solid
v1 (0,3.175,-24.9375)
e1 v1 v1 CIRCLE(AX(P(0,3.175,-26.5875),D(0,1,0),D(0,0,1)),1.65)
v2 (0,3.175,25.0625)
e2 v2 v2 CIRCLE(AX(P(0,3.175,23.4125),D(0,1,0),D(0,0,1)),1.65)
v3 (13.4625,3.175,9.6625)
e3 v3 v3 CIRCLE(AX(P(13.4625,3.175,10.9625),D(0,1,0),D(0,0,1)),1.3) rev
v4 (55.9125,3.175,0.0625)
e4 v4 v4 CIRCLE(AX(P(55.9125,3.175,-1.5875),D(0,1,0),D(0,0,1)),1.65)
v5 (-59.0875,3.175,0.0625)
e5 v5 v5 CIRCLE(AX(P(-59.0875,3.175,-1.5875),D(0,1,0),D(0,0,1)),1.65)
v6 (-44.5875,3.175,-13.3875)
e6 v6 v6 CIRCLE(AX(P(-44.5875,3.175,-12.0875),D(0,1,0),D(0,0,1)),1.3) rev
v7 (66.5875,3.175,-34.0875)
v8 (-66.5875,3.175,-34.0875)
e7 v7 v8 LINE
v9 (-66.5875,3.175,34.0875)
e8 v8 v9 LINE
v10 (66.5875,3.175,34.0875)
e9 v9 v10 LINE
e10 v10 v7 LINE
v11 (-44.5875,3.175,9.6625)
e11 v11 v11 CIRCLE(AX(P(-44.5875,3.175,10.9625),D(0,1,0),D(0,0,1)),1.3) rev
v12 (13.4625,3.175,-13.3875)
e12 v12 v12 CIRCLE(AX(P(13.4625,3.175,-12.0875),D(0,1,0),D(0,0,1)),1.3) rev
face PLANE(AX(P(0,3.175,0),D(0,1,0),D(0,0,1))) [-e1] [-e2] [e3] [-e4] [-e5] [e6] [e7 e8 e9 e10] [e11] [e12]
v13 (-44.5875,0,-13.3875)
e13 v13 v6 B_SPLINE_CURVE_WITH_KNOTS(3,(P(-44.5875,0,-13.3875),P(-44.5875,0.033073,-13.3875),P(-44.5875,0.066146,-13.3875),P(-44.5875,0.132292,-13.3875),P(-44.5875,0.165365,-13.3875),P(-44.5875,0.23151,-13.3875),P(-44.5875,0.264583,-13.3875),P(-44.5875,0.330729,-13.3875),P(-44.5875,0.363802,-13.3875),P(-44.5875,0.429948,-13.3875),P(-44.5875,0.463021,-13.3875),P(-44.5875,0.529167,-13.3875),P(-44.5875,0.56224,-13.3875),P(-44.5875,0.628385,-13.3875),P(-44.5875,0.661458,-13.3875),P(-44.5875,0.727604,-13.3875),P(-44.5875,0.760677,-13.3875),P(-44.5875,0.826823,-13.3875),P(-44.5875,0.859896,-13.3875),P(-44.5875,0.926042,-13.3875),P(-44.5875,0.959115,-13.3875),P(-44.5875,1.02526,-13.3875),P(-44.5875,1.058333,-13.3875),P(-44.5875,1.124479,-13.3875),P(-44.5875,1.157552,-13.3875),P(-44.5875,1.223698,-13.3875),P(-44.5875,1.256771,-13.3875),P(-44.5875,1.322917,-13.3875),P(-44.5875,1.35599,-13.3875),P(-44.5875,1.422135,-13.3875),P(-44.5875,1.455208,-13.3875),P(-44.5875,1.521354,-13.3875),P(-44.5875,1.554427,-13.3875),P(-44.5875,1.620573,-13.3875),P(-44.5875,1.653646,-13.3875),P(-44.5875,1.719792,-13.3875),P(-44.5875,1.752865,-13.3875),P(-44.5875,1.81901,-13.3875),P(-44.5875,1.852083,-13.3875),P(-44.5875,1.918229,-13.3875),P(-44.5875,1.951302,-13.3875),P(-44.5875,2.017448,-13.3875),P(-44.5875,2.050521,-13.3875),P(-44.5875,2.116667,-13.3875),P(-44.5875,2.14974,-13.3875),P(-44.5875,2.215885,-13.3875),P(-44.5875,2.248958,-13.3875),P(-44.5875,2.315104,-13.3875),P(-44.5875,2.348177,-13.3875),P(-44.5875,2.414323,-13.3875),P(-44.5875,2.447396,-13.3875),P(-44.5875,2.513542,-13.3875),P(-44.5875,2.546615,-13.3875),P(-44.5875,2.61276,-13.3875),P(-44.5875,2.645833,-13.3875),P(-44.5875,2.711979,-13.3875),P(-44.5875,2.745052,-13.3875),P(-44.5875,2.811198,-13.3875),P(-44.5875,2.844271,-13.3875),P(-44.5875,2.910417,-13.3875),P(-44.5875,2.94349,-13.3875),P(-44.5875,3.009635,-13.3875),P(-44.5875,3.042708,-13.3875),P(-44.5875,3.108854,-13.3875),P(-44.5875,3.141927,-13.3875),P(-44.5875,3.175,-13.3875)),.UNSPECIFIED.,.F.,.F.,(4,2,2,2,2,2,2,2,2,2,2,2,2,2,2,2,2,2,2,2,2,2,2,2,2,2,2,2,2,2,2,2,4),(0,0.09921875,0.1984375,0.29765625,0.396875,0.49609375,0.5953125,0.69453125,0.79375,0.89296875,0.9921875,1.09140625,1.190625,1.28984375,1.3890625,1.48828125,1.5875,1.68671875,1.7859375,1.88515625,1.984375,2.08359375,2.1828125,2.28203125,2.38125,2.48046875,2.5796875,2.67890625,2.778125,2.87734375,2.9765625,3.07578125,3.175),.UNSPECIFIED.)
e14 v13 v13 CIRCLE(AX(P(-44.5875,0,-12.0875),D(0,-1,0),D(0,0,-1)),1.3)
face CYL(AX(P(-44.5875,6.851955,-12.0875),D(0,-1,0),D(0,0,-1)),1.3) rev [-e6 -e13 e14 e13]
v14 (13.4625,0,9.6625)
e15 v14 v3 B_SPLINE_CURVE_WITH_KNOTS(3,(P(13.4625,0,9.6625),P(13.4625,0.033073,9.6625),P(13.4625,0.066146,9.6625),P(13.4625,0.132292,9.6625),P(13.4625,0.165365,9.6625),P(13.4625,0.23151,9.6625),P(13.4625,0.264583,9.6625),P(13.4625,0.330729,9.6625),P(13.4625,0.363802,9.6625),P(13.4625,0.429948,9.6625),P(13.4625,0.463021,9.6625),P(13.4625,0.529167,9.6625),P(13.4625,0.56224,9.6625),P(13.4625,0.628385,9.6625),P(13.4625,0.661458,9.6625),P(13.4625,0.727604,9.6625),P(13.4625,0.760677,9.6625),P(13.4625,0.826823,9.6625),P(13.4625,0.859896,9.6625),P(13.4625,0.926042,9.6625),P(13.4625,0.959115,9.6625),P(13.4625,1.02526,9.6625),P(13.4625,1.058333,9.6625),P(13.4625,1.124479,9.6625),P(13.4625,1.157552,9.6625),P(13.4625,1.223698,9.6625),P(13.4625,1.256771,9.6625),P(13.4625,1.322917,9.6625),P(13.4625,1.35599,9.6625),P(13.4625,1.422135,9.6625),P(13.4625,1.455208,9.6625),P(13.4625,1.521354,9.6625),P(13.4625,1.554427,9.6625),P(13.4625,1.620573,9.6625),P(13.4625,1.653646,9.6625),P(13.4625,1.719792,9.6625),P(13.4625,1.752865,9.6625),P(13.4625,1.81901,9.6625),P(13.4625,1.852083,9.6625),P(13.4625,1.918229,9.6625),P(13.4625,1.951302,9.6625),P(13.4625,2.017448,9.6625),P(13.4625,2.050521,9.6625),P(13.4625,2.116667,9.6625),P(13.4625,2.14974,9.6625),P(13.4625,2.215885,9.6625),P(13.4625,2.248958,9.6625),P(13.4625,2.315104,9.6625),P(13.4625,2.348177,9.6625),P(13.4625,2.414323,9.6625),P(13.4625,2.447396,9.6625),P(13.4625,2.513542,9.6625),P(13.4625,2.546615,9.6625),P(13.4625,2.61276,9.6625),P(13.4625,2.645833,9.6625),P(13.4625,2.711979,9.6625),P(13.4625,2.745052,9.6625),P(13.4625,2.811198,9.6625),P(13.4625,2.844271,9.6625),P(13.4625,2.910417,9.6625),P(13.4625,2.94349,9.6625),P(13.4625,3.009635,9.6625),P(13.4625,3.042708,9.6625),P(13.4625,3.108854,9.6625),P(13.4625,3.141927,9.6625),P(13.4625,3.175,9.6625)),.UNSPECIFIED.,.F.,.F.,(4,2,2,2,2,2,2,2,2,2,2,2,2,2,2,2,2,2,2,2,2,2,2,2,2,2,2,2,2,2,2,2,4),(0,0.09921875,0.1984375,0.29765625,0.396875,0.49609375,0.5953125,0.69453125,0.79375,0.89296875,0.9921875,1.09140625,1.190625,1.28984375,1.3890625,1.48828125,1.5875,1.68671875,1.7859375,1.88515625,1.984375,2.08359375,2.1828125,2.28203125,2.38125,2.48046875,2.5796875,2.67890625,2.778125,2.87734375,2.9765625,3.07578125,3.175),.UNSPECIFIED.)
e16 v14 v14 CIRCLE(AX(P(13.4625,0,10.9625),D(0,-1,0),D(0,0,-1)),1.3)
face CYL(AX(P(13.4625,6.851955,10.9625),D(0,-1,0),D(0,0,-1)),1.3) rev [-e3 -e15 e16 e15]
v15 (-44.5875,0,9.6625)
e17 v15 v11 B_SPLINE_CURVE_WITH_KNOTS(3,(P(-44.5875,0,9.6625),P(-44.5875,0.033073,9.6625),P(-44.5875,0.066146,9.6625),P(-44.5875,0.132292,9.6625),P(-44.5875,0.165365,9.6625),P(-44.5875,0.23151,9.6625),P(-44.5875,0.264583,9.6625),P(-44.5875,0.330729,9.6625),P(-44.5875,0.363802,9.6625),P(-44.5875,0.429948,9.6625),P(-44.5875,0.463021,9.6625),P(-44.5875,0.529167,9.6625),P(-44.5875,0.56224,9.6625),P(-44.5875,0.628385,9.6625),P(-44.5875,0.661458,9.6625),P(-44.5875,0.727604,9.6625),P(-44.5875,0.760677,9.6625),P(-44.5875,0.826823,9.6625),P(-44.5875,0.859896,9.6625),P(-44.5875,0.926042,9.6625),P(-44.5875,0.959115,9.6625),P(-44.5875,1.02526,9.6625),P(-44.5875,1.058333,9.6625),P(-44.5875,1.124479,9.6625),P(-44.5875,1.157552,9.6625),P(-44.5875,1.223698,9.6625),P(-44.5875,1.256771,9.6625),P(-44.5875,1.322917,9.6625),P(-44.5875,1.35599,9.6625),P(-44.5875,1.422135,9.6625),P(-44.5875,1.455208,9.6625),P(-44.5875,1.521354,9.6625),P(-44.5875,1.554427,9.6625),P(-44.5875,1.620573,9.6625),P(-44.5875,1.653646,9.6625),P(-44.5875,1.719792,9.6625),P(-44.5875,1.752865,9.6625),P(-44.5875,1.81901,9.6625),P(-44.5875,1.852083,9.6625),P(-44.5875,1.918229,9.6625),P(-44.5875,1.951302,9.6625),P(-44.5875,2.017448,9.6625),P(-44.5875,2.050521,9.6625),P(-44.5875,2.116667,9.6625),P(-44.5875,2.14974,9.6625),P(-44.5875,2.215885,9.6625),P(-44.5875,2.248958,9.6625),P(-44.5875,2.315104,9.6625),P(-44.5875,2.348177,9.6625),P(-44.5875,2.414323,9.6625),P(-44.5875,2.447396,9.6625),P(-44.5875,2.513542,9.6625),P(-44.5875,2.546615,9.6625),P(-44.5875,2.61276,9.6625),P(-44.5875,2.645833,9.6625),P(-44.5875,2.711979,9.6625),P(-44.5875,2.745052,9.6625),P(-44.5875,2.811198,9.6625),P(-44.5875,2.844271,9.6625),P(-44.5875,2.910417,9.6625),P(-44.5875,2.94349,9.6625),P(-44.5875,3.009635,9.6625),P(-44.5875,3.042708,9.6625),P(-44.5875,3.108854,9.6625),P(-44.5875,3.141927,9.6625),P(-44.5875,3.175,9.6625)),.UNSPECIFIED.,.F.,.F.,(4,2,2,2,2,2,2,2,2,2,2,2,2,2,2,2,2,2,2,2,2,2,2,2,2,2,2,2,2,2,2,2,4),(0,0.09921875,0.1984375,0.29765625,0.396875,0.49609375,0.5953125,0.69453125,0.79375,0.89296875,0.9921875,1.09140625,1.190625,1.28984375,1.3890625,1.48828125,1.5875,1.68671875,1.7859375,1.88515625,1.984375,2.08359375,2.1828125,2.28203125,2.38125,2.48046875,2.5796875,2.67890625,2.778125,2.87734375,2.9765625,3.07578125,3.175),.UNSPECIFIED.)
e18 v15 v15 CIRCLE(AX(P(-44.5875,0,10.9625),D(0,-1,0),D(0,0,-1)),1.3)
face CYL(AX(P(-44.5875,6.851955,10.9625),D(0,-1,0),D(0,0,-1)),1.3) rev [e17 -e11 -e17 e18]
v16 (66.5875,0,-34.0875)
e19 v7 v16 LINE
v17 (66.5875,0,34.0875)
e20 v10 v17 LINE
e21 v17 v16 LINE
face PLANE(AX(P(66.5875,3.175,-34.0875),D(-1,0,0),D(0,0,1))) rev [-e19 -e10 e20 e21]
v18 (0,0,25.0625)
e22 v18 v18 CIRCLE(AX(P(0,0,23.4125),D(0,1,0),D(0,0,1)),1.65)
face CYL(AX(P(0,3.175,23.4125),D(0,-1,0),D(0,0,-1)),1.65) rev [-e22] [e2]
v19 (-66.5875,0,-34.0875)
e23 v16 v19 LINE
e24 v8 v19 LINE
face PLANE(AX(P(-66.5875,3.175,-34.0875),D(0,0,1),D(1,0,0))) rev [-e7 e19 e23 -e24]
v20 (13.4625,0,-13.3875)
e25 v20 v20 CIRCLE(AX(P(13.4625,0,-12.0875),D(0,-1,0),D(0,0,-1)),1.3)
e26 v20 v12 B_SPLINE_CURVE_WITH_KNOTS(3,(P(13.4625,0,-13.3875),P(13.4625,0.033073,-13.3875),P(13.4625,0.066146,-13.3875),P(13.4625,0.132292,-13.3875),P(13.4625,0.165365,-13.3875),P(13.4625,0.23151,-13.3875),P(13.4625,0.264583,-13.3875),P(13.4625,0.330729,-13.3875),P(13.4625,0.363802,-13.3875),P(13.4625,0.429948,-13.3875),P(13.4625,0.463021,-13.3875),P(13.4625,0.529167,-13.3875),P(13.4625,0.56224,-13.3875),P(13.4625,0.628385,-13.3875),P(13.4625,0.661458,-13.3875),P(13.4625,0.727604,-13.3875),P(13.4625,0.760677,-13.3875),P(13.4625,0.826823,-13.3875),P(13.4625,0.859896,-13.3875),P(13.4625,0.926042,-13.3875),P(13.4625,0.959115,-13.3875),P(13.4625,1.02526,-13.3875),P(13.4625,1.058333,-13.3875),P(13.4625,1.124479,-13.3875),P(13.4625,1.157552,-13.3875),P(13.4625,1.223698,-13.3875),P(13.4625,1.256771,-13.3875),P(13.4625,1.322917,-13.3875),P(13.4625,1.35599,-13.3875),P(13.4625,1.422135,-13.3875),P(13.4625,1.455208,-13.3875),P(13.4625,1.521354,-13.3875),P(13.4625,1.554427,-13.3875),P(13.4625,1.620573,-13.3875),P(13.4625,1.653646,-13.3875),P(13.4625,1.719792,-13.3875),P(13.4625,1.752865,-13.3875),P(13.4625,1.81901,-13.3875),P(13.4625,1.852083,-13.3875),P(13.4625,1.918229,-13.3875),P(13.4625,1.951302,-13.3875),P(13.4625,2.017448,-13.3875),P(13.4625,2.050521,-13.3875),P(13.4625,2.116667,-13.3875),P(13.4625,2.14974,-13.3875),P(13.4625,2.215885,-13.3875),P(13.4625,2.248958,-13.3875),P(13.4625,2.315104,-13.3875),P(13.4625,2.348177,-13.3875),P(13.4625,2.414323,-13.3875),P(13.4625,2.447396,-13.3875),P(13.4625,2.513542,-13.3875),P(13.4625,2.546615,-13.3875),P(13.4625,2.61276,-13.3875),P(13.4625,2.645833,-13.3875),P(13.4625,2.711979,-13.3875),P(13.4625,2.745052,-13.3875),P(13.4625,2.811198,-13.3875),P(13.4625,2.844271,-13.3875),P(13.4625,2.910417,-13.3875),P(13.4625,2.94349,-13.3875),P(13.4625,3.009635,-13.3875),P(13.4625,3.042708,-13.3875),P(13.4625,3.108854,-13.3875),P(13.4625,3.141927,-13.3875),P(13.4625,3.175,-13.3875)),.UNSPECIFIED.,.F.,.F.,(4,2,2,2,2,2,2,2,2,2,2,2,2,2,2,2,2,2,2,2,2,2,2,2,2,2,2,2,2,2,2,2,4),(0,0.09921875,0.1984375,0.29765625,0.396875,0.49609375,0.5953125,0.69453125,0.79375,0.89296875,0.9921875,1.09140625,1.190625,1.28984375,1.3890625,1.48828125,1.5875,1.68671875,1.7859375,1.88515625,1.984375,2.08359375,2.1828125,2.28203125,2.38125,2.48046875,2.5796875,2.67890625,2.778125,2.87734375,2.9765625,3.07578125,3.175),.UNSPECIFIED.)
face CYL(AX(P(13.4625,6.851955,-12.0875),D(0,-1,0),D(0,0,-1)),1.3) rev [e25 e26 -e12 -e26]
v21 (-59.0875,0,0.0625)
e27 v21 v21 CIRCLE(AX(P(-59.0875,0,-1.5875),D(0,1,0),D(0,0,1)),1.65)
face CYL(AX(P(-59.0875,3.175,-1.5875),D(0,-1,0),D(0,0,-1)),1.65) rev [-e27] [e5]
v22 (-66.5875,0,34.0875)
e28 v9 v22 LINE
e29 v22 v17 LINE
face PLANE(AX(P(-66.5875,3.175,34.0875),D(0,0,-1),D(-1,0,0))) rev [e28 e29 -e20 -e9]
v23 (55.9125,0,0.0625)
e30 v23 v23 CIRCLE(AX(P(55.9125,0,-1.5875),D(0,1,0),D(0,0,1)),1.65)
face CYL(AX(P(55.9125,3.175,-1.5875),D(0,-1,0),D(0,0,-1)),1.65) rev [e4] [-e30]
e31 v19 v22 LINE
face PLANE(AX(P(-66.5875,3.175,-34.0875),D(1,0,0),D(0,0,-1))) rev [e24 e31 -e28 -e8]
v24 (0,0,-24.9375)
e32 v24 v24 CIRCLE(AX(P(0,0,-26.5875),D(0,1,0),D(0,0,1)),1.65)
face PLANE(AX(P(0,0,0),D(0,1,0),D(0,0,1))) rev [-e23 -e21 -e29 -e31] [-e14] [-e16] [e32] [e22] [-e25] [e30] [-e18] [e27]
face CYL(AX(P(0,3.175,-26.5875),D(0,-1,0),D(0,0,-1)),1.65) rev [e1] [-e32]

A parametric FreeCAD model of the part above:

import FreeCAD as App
import Part
import Sketcher

V = App.Vector
Q = App.Units.Quantity

doc = App.newDocument("Part")
params = doc.addObject("Spreadsheet::Sheet", "Params")
for row, (alias, value) in enumerate([
    ("sketch1_diameter", "3.3 mm"),
    ("pad1_length", "3.175 mm"),
    ("sketch2_diameter", "2.6 mm"),
    ("pocket1_length", "3.175 mm"),
], start=1):
    params.set(f"A{row}", alias)
    params.set(f"B{row}", "=" + value)
    params.setAlias(f"B{row}", alias)

body = doc.addObject("PartDesign::Body", "Body")

# Sketch on XZ plane
sketch1 = body.newObject("Sketcher::SketchObject", "Sketch")
sketch1.AttachmentSupport = (doc.getObject("XZ_Plane"), [""])
sketch1.MapMode = "FlatFace"
sketch1.addGeometry(Part.LineSegment(V(-66.6, -34.1, 0), V(-66.6, 34.1, 0)), False)
sketch1.addGeometry(Part.LineSegment(V(-66.6, 34.1, 0), V(66.6, 34.1, 0)), False)
sketch1.addGeometry(Part.LineSegment(V(66.6, 34.1, 0), V(66.6, -34.1, 0)), False)
sketch1.addGeometry(Part.LineSegment(V(66.6, -34.1, 0), V(-66.6, -34.1, 0)), False)
sketch1.addGeometry(Part.Circle(V(0, 23.4, 0), V(0, 0, 1), 1.6), False)
sketch1.addGeometry(Part.Circle(V(-59.1, -1.6, 0), V(0, 0, 1), 1.6), False)
sketch1.addGeometry(Part.Circle(V(55.9, -1.6, 0), V(0, 0, 1), 1.6), False)
sketch1.addGeometry(Part.Circle(V(0, -26.6, 0), V(0, 0, 1), 1.6), False)
sketch1.addConstraint(Sketcher.Constraint("Coincident", 0, 2, 1, 1))
sketch1.addConstraint(Sketcher.Constraint("Coincident", 1, 2, 2, 1))
sketch1.addConstraint(Sketcher.Constraint("Coincident", 2, 2, 3, 1))
sketch1.addConstraint(Sketcher.Constraint("Coincident", 3, 2, 0, 1))
sketch1.addConstraint(Sketcher.Constraint("Vertical", 0))
sketch1.addConstraint(Sketcher.Constraint("Horizontal", 1))
sketch1.addConstraint(Sketcher.Constraint("Vertical", 2))
sketch1.addConstraint(Sketcher.Constraint("Horizontal", 3))
sketch1.addConstraint(Sketcher.Constraint("Equal", 4, 5))
sketch1.addConstraint(Sketcher.Constraint("Equal", 5, 6))
sketch1.addConstraint(Sketcher.Constraint("Equal", 6, 7))
sketch1.addConstraint(Sketcher.Constraint("Symmetric", 0, 2, 2, 2, -1, 1))
sketch1.addConstraint(Sketcher.Constraint("PointOnObject", 4, 3, -2))
sketch1.addConstraint(Sketcher.Constraint("PointOnObject", 7, 3, -2))
sketch1.addConstraint(Sketcher.Constraint("Horizontal", 5, 3, 6, 3))
sketch1.addConstraint(Sketcher.Constraint("Diameter", 4, Q("3.3 mm")))
sketch1.addConstraint(Sketcher.Constraint("DistanceY", 5, 3, 4, 3, Q("25 mm")))
sketch1.addConstraint(Sketcher.Constraint("DistanceX", 5, 3, 6, 3, Q("115 mm")))
sketch1.addConstraint(Sketcher.Constraint("DistanceY", 7, 3, 4, 3, Q("50 mm")))
sketch1.addConstraint(Sketcher.Constraint("DistanceX", 0, 2, 5, 3, Q("7.5 mm")))
sketch1.addConstraint(Sketcher.Constraint("DistanceY", 2, 2, 6, 3, Q("32.5 mm")))
sketch1.addConstraint(Sketcher.Constraint("DistanceX", 1, 1, 1, 2, Q("133.175 mm")))
sketch1.addConstraint(Sketcher.Constraint("DistanceY", 0, 1, 0, 2, Q("68.175 mm")))
sketch1.setExpression("Constraints[15]", "Params.sketch1_diameter")
pad1 = body.newObject("PartDesign::Pad", "Pad")
pad1.Profile = sketch1
pad1.setExpression("Length", "Params.pad1_length")
pad1.Reversed = True

# Sketch on XZ plane
sketch2 = body.newObject("Sketcher::SketchObject", "Sketch001")
sketch2.AttachmentSupport = (doc.getObject("XZ_Plane"), [""])
sketch2.MapMode = "FlatFace"
sketch2.addGeometry(Part.Circle(V(-44.6, 11, 0), V(0, 0, 1), 1.3), False)
sketch2.addGeometry(Part.Circle(V(-44.6, -12.1, 0), V(0, 0, 1), 1.3), False)
sketch2.addGeometry(Part.Circle(V(13.5, -12.1, 0), V(0, 0, 1), 1.3), False)
sketch2.addGeometry(Part.Circle(V(13.5, 11, 0), V(0, 0, 1), 1.3), False)
sketch2.addConstraint(Sketcher.Constraint("Equal", 0, 1))
sketch2.addConstraint(Sketcher.Constraint("Equal", 1, 2))
sketch2.addConstraint(Sketcher.Constraint("Equal", 2, 3))
sketch2.addConstraint(Sketcher.Constraint("Horizontal", 1, 3, 2, 3))
sketch2.addConstraint(Sketcher.Constraint("Horizontal", 0, 3, 3, 3))
sketch2.addConstraint(Sketcher.Constraint("Vertical", 0, 3, 1, 3))
sketch2.addConstraint(Sketcher.Constraint("Vertical", 2, 3, 3, 3))
sketch2.addConstraint(Sketcher.Constraint("Diameter", 0, Q("2.6 mm")))
sketch2.addConstraint(Sketcher.Constraint("DistanceY", 1, 3, 0, 3, Q("23.05 mm")))
sketch2.addConstraint(Sketcher.Constraint("DistanceX", 1, 3, 2, 3, Q("58.05 mm")))
sketch2.addConstraint(Sketcher.Constraint("DistanceX", 0, 3, -1, 1, Q("44.5875 mm")))
sketch2.addConstraint(Sketcher.Constraint("DistanceY", -1, 1, 0, 3, Q("10.9625 mm")))
sketch2.setExpression("Constraints[7]", "Params.sketch2_diameter")
pocket1 = body.newObject("PartDesign::Pocket", "Pocket")
pocket1.Profile = sketch2
pocket1.setExpression("Length", "Params.pocket1_length")

doc.recompute()
